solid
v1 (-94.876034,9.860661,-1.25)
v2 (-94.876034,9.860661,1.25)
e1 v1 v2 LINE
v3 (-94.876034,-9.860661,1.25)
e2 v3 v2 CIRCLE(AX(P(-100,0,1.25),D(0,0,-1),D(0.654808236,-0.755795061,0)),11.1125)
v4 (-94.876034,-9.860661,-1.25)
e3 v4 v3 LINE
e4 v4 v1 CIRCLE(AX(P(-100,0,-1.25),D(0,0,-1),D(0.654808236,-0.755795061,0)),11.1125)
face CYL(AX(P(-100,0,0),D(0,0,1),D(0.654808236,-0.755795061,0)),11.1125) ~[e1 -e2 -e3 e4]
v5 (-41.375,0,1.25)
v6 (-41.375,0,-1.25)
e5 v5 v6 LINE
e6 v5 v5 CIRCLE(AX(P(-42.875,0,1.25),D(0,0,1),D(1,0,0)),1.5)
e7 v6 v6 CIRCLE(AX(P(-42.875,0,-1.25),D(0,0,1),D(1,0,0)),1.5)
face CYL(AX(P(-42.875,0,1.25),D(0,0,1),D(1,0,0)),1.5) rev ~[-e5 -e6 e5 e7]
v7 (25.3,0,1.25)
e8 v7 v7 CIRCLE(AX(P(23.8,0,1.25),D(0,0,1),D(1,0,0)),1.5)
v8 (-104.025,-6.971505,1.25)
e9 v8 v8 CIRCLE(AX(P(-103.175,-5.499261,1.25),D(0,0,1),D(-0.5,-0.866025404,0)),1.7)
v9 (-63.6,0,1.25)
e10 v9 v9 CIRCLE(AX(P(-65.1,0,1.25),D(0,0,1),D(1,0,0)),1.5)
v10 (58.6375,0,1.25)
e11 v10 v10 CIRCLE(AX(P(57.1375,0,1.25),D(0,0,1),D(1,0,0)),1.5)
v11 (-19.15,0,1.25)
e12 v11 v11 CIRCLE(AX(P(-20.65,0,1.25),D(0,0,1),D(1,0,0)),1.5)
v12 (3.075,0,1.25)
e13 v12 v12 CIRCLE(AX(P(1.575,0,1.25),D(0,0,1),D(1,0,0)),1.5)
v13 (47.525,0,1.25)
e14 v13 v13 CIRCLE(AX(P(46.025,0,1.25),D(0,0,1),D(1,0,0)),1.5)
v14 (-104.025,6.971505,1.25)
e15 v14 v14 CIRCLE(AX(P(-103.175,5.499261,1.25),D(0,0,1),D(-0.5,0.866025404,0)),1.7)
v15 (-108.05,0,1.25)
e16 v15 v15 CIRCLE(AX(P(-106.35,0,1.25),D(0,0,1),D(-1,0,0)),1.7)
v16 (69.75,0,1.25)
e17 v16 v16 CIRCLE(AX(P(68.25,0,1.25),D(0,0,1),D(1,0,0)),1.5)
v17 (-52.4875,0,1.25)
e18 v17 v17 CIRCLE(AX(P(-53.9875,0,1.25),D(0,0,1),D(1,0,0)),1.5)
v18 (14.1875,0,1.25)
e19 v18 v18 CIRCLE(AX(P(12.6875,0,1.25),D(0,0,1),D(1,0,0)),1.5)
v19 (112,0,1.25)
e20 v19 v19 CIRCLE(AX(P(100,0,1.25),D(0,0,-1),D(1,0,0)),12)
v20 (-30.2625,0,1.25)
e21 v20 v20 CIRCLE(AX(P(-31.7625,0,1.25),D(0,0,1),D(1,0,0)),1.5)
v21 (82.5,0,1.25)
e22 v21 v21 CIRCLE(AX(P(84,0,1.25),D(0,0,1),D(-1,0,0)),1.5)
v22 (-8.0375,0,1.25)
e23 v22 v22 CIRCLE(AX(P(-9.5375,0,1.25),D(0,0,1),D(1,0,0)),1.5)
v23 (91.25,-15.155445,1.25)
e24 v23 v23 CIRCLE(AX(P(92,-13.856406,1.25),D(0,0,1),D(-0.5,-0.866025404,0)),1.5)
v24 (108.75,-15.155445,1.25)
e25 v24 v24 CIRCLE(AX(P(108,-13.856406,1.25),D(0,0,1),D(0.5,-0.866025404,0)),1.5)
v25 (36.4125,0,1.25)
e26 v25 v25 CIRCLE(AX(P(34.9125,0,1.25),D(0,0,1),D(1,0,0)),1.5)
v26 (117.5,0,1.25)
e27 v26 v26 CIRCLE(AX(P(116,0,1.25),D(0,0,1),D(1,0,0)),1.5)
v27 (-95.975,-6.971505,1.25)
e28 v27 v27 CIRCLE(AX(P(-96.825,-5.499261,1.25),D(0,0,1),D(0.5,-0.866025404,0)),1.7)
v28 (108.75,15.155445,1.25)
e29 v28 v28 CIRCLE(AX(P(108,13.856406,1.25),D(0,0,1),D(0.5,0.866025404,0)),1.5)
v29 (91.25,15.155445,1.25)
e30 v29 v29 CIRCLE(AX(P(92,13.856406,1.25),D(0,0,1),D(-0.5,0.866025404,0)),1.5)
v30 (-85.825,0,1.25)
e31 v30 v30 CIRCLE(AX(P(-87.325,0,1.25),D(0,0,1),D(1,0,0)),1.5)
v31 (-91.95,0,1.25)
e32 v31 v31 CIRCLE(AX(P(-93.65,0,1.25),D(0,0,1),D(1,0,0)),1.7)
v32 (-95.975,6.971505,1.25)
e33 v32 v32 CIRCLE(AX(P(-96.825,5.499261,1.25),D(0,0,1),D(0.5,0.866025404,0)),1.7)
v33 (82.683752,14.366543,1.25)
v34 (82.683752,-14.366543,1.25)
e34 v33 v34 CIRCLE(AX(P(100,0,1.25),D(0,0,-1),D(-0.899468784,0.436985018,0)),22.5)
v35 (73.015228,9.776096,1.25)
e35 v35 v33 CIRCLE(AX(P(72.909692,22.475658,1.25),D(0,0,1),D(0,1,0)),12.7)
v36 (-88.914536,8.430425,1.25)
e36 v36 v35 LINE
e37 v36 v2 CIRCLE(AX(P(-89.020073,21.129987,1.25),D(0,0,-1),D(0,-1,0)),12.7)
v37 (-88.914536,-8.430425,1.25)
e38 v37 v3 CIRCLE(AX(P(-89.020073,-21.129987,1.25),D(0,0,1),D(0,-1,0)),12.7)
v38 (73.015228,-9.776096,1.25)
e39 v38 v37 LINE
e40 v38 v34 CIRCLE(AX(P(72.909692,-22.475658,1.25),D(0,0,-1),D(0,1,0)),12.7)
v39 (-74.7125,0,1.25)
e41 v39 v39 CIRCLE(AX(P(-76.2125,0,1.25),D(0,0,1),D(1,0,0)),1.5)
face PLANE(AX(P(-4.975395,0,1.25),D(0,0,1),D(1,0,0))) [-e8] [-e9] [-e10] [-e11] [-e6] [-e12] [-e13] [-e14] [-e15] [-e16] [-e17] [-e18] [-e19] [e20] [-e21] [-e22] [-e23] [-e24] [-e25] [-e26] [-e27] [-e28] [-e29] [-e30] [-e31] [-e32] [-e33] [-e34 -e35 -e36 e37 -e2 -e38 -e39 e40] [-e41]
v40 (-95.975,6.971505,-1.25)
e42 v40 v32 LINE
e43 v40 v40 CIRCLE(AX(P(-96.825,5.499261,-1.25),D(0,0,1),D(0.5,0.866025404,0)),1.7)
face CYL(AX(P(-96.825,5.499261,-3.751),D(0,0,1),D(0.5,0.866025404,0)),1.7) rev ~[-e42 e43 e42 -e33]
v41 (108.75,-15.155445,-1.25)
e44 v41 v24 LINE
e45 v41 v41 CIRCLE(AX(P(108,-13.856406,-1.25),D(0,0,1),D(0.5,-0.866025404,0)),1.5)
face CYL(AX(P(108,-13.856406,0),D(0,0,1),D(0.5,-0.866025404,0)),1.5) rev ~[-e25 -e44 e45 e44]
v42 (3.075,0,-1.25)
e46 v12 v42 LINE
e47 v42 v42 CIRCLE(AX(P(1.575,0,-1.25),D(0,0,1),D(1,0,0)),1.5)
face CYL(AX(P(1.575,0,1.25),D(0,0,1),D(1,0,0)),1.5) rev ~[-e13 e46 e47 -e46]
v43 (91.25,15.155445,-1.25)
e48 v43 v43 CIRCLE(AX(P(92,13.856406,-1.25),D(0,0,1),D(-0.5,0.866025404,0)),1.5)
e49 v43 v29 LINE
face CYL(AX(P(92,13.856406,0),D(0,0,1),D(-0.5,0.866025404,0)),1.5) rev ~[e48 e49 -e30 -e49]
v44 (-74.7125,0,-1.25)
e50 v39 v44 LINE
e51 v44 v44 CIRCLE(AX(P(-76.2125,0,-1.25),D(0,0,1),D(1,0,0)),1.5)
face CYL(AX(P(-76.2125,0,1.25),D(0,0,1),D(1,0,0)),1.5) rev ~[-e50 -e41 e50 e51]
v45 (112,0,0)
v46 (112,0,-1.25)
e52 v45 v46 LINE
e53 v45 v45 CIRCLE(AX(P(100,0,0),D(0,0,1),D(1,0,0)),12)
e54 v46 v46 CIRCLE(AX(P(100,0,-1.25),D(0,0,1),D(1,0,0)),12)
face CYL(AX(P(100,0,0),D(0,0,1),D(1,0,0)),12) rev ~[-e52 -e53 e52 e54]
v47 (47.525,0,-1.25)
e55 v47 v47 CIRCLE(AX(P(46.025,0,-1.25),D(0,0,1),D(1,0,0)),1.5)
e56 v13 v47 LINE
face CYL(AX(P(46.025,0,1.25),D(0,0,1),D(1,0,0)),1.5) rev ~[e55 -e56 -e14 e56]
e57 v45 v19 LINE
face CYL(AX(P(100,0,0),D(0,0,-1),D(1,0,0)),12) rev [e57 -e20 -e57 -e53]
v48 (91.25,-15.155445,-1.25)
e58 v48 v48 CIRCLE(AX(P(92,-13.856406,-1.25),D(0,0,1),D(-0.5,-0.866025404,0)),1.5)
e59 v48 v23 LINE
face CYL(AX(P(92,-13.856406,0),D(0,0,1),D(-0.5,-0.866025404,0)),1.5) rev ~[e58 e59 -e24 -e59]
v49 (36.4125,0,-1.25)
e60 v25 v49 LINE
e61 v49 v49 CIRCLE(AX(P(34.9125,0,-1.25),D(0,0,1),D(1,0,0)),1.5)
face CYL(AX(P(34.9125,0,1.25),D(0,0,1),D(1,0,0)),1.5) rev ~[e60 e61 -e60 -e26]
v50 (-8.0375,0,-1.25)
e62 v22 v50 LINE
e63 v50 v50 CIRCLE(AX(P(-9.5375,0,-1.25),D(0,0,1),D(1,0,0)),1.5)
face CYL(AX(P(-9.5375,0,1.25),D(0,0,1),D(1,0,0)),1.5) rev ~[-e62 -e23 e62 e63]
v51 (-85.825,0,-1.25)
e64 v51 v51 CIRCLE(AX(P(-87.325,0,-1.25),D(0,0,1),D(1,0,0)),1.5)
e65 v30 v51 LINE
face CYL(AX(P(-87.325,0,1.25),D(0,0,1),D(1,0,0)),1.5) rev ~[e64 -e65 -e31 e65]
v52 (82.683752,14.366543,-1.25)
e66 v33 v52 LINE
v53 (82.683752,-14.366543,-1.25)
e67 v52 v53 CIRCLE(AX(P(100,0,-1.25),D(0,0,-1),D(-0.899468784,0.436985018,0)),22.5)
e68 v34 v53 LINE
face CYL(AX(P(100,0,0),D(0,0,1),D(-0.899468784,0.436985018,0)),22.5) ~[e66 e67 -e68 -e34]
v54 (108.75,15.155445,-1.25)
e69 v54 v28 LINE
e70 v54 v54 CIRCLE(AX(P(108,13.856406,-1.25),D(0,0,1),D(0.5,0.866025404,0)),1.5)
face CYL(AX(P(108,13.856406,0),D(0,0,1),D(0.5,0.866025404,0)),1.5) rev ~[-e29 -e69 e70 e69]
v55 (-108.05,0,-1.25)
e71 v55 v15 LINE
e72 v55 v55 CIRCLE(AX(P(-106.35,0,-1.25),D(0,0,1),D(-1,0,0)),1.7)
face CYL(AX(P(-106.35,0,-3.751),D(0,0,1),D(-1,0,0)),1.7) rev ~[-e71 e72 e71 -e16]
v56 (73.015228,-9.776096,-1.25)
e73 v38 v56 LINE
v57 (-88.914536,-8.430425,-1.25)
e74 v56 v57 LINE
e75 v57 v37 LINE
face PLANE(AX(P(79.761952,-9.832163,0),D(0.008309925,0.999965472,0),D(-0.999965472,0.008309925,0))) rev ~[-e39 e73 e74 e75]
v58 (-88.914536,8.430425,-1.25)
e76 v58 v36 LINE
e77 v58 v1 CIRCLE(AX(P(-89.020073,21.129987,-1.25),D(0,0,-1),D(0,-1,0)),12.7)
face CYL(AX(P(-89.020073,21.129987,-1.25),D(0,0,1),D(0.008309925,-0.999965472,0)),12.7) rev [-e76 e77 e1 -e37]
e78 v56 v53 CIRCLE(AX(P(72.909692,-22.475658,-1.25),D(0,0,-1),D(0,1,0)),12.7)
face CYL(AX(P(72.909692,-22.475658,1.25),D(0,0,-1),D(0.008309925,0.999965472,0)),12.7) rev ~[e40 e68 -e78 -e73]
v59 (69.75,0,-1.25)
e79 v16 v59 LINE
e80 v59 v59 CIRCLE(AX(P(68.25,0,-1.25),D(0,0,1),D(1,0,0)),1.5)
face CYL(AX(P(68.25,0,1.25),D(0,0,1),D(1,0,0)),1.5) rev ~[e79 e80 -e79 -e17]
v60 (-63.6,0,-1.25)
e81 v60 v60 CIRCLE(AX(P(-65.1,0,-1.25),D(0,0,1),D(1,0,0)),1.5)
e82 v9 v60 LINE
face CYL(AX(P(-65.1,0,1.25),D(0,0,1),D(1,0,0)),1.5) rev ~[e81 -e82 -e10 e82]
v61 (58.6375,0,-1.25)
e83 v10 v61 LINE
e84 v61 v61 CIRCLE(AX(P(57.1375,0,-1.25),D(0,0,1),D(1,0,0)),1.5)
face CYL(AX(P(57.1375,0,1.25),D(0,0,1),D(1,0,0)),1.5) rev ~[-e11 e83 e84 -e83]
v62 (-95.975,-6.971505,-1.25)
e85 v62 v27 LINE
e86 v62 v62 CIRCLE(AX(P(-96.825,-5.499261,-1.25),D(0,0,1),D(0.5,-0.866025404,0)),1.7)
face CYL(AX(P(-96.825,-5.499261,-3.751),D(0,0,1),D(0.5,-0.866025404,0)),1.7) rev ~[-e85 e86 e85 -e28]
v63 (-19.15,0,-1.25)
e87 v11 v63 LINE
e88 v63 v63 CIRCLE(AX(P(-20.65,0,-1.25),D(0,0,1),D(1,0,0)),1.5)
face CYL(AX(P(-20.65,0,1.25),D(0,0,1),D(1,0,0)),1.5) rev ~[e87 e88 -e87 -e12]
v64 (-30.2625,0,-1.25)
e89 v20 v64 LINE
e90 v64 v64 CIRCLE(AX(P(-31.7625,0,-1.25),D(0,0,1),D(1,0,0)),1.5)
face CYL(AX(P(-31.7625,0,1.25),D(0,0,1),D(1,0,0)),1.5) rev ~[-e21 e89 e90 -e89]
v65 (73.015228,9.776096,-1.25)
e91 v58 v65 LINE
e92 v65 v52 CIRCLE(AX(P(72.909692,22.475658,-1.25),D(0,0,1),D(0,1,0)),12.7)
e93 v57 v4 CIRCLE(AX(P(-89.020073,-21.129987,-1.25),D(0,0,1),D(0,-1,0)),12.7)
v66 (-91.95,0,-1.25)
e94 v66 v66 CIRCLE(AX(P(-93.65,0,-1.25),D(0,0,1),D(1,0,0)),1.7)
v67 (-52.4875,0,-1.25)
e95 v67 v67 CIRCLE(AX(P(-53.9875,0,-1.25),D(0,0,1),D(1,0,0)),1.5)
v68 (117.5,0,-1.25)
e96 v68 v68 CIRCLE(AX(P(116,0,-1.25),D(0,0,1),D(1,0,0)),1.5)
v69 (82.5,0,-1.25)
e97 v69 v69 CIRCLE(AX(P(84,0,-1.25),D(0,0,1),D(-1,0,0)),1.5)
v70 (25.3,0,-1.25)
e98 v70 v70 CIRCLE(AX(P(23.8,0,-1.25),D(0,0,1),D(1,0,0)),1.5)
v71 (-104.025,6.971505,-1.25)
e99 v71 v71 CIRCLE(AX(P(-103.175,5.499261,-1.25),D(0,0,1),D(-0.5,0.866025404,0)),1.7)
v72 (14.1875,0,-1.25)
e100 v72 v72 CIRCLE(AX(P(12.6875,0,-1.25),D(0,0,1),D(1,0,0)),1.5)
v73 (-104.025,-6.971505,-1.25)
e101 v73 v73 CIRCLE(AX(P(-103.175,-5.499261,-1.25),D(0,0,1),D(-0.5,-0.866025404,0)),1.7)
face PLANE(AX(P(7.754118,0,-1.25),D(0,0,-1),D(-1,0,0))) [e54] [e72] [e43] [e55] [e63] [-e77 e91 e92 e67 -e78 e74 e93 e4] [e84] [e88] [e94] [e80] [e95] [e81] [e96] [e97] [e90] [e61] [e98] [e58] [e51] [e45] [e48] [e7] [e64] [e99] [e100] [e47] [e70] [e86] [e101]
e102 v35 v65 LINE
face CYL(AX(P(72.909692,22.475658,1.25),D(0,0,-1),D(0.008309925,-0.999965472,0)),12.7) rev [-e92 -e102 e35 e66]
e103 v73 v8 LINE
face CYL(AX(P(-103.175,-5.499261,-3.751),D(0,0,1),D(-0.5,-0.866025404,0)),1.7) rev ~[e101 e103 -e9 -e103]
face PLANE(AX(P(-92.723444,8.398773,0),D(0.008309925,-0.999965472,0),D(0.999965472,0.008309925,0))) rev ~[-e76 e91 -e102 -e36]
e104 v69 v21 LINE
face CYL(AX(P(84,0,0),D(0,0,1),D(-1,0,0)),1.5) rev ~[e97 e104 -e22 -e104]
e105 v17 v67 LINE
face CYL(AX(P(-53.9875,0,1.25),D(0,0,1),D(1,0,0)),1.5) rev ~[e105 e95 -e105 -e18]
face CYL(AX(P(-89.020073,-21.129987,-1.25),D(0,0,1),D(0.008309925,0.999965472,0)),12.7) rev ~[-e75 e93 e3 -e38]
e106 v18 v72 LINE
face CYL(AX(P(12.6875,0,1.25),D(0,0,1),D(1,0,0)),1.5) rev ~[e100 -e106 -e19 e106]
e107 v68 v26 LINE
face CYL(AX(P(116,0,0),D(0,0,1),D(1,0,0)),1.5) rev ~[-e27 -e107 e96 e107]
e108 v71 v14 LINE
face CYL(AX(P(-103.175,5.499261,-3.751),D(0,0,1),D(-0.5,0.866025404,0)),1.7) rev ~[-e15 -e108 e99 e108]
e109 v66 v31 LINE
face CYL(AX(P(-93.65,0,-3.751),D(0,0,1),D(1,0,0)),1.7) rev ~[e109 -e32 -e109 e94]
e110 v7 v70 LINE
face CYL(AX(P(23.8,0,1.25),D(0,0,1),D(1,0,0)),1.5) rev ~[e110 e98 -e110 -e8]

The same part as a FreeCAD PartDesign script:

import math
import FreeCAD as App
import Part
import Sketcher
from FreeCAD import Vector


def edges_at(feature, points):
    """Names of the edges that pass closest to the given points."""
    edges = feature.Shape.Edges
    near = lambda p: min(range(len(edges)), key=lambda i: edges[i].distToShape(Part.Vertex(*p))[0])
    return sorted({f"Edge{near(p) + 1}" for p in points})

doc = App.newDocument("Part")
body = doc.addObject("PartDesign::Body", "Body")

sketch1 = body.newObject("Sketcher::SketchObject", "Sketch")
sketch1.AttachmentSupport = (doc.getObject("XY_Plane"), [""])
sketch1.MapMode = "FlatFace"
sketch1.addGeometry([
    Part.LineSegment(Vector(79.8, 9.8, 0), Vector(-92.7, 8.4, 0)),
    Part.ArcOfCircle(Part.Circle(Vector(-100, 0, 0), Vector(0, 0, 1), 11.1), math.radians(49), math.radians(311)),
    Part.LineSegment(Vector(-92.7, -8.4, 0), Vector(79.8, -9.8, 0)),
    Part.ArcOfCircle(Part.Circle(Vector(100, 0, 0), Vector(0, 0, 1), 22.5), math.radians(-154), math.radians(154)),
    Part.LineSegment(Vector(-89, 1.5, 0), Vector(77.7, 2.9, 0)),
    Part.ArcOfCircle(Part.Circle(Vector(100, 0, 0), Vector(0, 0, 1), 22.5), math.radians(172.63), math.radians(187.37)),
    Part.LineSegment(Vector(77.7, -2.9, 0), Vector(-89, -1.5, 0)),
    Part.LineSegment(Vector(-89, -1.5, 0), Vector(-89, 1.5, 0)),
], False)
sketch1.addConstraint([
    Sketcher.Constraint("Coincident", 0, 2, 1, 1),
    Sketcher.Constraint("Coincident", 1, 2, 2, 1),
    Sketcher.Constraint("Coincident", 2, 2, 3, 1),
    Sketcher.Constraint("Coincident", 3, 2, 0, 1),
    Sketcher.Constraint("Coincident", 4, 2, 5, 1),
    Sketcher.Constraint("Coincident", 5, 2, 6, 1),
    Sketcher.Constraint("Coincident", 6, 2, 7, 1),
    Sketcher.Constraint("Coincident", 7, 2, 4, 1),
    Sketcher.Constraint("Vertical", 7),
    Sketcher.Constraint("Coincident", 5, 3, 3, 3),
    Sketcher.Constraint("Equal", 3, 5),
    Sketcher.Constraint("Symmetric", 1, 3, 3, 3, -1, 1),
    Sketcher.Constraint("Symmetric", 0, 2, 1, 2, -1),
    Sketcher.Constraint("Parallel", 0, 4),
    Sketcher.Constraint("Parallel", 2, 6),
    Sketcher.Constraint("Vertical", 2, 2, 3, 2),
    Sketcher.Constraint("Vertical", 4, 2, 5, 2),
    Sketcher.Constraint("Radius", 3, 22.5),
    Sketcher.Constraint("DistanceY", 7, 1, 7, 2, 3.0),
    Sketcher.Constraint("DistanceX", 1, 3, -1, 1, 100.0),
    Sketcher.Constraint("Radius", 1, 11.1125),
    Sketcher.Constraint("Distance", 4, 166.680699),
    Sketcher.Constraint("Distance", 0, 172.491352),
    Sketcher.Constraint("DistanceX", -1, 1, 4, 2, 77.685741),
])
pad1 = body.newObject("PartDesign::Pad", "Pad")
pad1.Profile = sketch1
pad1.Length = 2.5
pad1.Midplane = True
doc.recompute()

fillet = body.newObject("PartDesign::Fillet", "Fillet")
fillet.Base = (pad1, edges_at(pad1, [
    (-92.723, 8.399, 0),
    (79.762, 9.832, 0),
    (79.762, -9.832, 0),
    (-92.723, -8.399, 0),
]))
fillet.Radius = 12.7

sketch2 = body.newObject("Sketcher::SketchObject", "Sketch001")
sketch2.AttachmentSupport = (doc.getObject("XY_Plane"), [""])
sketch2.MapMode = "FlatFace"
sketch2.addGeometry([
    Part.LineSegment(Vector(-89, 1.5, 0), Vector(-89, -1.5, 0)),
    Part.LineSegment(Vector(-89, -1.5, 0), Vector(77.7, -2.9, 0)),
    Part.ArcOfCircle(Part.Circle(Vector(100, 0, 0), Vector(0, 0, 1), 22.5), math.radians(172.63), math.radians(187.37)),
    Part.LineSegment(Vector(77.7, 2.9, 0), Vector(-89, 1.5, 0)),
], False)
sketch2.addConstraint([
    Sketcher.Constraint("Coincident", 0, 2, 1, 1),
    Sketcher.Constraint("Coincident", 1, 2, 2, 2),
    Sketcher.Constraint("Coincident", 2, 1, 3, 1),
    Sketcher.Constraint("Coincident", 3, 2, 0, 1),
    Sketcher.Constraint("Vertical", 0),
    Sketcher.Constraint("Symmetric", 1, 2, 2, 1, -1),
    Sketcher.Constraint("Equal", 1, 3),
    Sketcher.Constraint("Radius", 2, 22.5),
    Sketcher.Constraint("DistanceY", 0, 2, 0, 1, 3.0),
    Sketcher.Constraint("DistanceX", -1, 1, 2, 3, 100.0),
    Sketcher.Constraint("Distance", 1, 166.680699),
    Sketcher.Constraint("DistanceX", -1, 1, 1, 2, 77.685741),
])
pad2 = body.newObject("PartDesign::Pad", "Pad001")
pad2.Profile = sketch2
pad2.Length = 2.5
pad2.Midplane = True

sketch3 = body.newObject("Sketcher::SketchObject", "Sketch002")
sketch3.AttachmentSupport = (doc.getObject("XY_Plane"), [""])
sketch3.MapMode = "FlatFace"
sketch3.addGeometry(Part.Circle(Vector(100, 0, 0), Vector(0, 0, 1), 12), False)
sketch3.addConstraint([
    Sketcher.Constraint("PointOnObject", 0, 3, -1),
    Sketcher.Constraint("Diameter", 0, 24.0),
    Sketcher.Constraint("DistanceX", -1, 1, 0, 3, 100.0),
])
pocket1 = body.newObject("PartDesign::Pocket", "Pocket")
pocket1.Profile = sketch3
pocket1.Type = "ThroughAll"
pocket1.Midplane = True

sketch4 = body.newObject("Sketcher::SketchObject", "Sketch003")
sketch4.AttachmentSupport = (doc.getObject("XY_Plane"), [""])
sketch4.MapMode = "FlatFace"
sketch4.addGeometry(Part.Circle(Vector(116, 0, 0), Vector(0, 0, 1), 1.5), False)
sketch4.addConstraint([
    Sketcher.Constraint("PointOnObject", 0, 3, -1),
    Sketcher.Constraint("Diameter", 0, 3.0),
    Sketcher.Constraint("DistanceX", -1, 1, 0, 3, 116.0),
])
pocket2 = body.newObject("PartDesign::Pocket", "Pocket001")
pocket2.Profile = sketch4
pocket2.Length = 4.5
pocket2.Midplane = True
doc.recompute()

datumline = body.newObject("PartDesign::Line", "DatumLine")
datumline.Placement = App.Placement(Vector(100, 0, 0), App.Rotation(Vector(0, 0, 1), Vector(0, 0, 1)))
polarpattern = body.newObject("PartDesign::PolarPattern", "PolarPattern")
polarpattern.Originals = [pocket2]
polarpattern.Axis = (datumline, [""])
polarpattern.Angle = 360
polarpattern.Occurrences = 6
body.Tip = polarpattern

sketch5 = body.newObject("Sketcher::SketchObject", "Sketch004")
sketch5.AttachmentSupport = (doc.getObject("XY_Plane"), [""])
sketch5.MapMode = "FlatFace"
sketch5.AttachmentOffset = App.Placement(Vector(0, 0, 1.25), App.Rotation())
sketch5.addGeometry([
    Part.Circle(Vector(68.3, 0, 0), Vector(0, 0, 1), 1.5),
    Part.Circle(Vector(57.1, 0, 0), Vector(0, 0, 1), 1.5),
    Part.Circle(Vector(46, 0, 0), Vector(0, 0, 1), 1.5),
    Part.Circle(Vector(34.9, 0, 0), Vector(0, 0, 1), 1.5),
    Part.Circle(Vector(23.8, 0, 0), Vector(0, 0, 1), 1.5),
    Part.Circle(Vector(12.7, 0, 0), Vector(0, 0, 1), 1.5),
    Part.Circle(Vector(1.6, 0, 0), Vector(0, 0, 1), 1.5),
    Part.Circle(Vector(-9.5, 0, 0), Vector(0, 0, 1), 1.5),
    Part.Circle(Vector(-20.6, 0, 0), Vector(0, 0, 1), 1.5),
    Part.Circle(Vector(-31.8, 0, 0), Vector(0, 0, 1), 1.5),
    Part.Circle(Vector(-42.9, 0, 0), Vector(0, 0, 1), 1.5),
    Part.Circle(Vector(-54, 0, 0), Vector(0, 0, 1), 1.5),
    Part.Circle(Vector(-65.1, 0, 0), Vector(0, 0, 1), 1.5),
    Part.Circle(Vector(-76.2, 0, 0), Vector(0, 0, 1), 1.5),
    Part.Circle(Vector(-87.3, 0, 0), Vector(0, 0, 1), 1.5),
], False)
sketch5.addConstraint([
    Sketcher.Constraint("Equal", 0, 1),
    Sketcher.Constraint("Equal", 1, 2),
    Sketcher.Constraint("Equal", 2, 3),
    Sketcher.Constraint("Equal", 3, 4),
    Sketcher.Constraint("Equal", 4, 5),
    Sketcher.Constraint("Equal", 5, 6),
    Sketcher.Constraint("Equal", 6, 7),
    Sketcher.Constraint("Equal", 7, 8),
    Sketcher.Constraint("Equal", 8, 9),
    Sketcher.Constraint("Equal", 9, 10),
    Sketcher.Constraint("Equal", 10, 11),
    Sketcher.Constraint("Equal", 11, 12),
    Sketcher.Constraint("Equal", 12, 13),
    Sketcher.Constraint("Equal", 13, 14),
    Sketcher.Constraint("PointOnObject", 0, 3, -1),
    Sketcher.Constraint("PointOnObject", 1, 3, -1),
    Sketcher.Constraint("PointOnObject", 2, 3, -1),
    Sketcher.Constraint("PointOnObject", 3, 3, -1),
    Sketcher.Constraint("PointOnObject", 4, 3, -1),
    Sketcher.Constraint("PointOnObject", 5, 3, -1),
    Sketcher.Constraint("PointOnObject", 6, 3, -1),
    Sketcher.Constraint("PointOnObject", 7, 3, -1),
    Sketcher.Constraint("PointOnObject", 8, 3, -1),
    Sketcher.Constraint("PointOnObject", 9, 3, -1),
    Sketcher.Constraint("PointOnObject", 10, 3, -1),
    Sketcher.Constraint("PointOnObject", 11, 3, -1),
    Sketcher.Constraint("PointOnObject", 12, 3, -1),
    Sketcher.Constraint("PointOnObject", 13, 3, -1),
    Sketcher.Constraint("PointOnObject", 14, 3, -1),
    Sketcher.Constraint("Diameter", 0, 3.0),
    Sketcher.Constraint("DistanceX", -1, 1, 4, 3, 23.8),
    Sketcher.Constraint("DistanceX", 12, 3, -1, 1, 65.1),
    Sketcher.Constraint("DistanceX", -1, 1, 0, 3, 68.25),
    Sketcher.Constraint("DistanceX", 8, 3, -1, 1, 20.65),
    Sketcher.Constraint("DistanceX", 5, 3, 1, 3, 44.45),
    Sketcher.Constraint("DistanceX", 6, 3, 2, 3, 44.45),
    Sketcher.Constraint("DistanceX", 7, 3, 3, 3, 44.45),
    Sketcher.Constraint("DistanceX", 9, 3, 5, 3, 44.45),
    Sketcher.Constraint("DistanceX", 10, 3, 6, 3, 44.45),
    Sketcher.Constraint("DistanceX", 11, 3, 7, 3, 44.45),
    Sketcher.Constraint("DistanceX", 13, 3, 9, 3, 44.45),
    Sketcher.Constraint("DistanceX", 14, 3, 10, 3, 44.45),
    Sketcher.Constraint("DistanceX", -1, 1, 2, 3, 46.025),
    Sketcher.Constraint("DistanceX", 3, 3, 1, 3, 22.225),
    Sketcher.Constraint("DistanceX", -1, 1, 1, 3, 57.1375),
])
pocket3 = body.newObject("PartDesign::Pocket", "Pocket002")
pocket3.Profile = sketch5
pocket3.Type = "ThroughAll"
pocket3.Midplane = True

sketch6 = body.newObject("Sketcher::SketchObject", "Sketch005")
sketch6.AttachmentSupport = (doc.getObject("XY_Plane"), [""])
sketch6.MapMode = "FlatFace"
sketch6.AttachmentOffset = App.Placement(Vector(0, 0, -1.25), App.Rotation())
sketch6.addGeometry(Part.Circle(Vector(-93.7, 0, 0), Vector(0, 0, 1), 1.7), False)
sketch6.addConstraint([
    Sketcher.Constraint("PointOnObject", 0, 3, -1),
    Sketcher.Constraint("Diameter", 0, 3.4),
    Sketcher.Constraint("DistanceX", 0, 3, -1, 1, 93.65),
])
doc.recompute()
hole = body.newObject("PartDesign::Hole", "Hole")
hole.Profile = sketch6
hole.ThreadType = "None"
hole.Diameter = 3.4
hole.DepthType = "Dimension"
hole.Depth = 2.501
hole.DrillPoint = "Flat"
hole.Reversed = True
doc.recompute()

datumline2 = body.newObject("PartDesign::Line", "DatumLine001")
datumline2.Placement = App.Placement(Vector(-100, 0, 0), App.Rotation(Vector(0, 0, 1), Vector(0, 0, 1)))
polarpattern2 = body.newObject("PartDesign::PolarPattern", "PolarPattern001")
polarpattern2.Originals = [hole]
polarpattern2.Axis = (datumline2, [""])
polarpattern2.Angle = 360
polarpattern2.Occurrences = 6
body.Tip = polarpattern2

doc.recompute()
